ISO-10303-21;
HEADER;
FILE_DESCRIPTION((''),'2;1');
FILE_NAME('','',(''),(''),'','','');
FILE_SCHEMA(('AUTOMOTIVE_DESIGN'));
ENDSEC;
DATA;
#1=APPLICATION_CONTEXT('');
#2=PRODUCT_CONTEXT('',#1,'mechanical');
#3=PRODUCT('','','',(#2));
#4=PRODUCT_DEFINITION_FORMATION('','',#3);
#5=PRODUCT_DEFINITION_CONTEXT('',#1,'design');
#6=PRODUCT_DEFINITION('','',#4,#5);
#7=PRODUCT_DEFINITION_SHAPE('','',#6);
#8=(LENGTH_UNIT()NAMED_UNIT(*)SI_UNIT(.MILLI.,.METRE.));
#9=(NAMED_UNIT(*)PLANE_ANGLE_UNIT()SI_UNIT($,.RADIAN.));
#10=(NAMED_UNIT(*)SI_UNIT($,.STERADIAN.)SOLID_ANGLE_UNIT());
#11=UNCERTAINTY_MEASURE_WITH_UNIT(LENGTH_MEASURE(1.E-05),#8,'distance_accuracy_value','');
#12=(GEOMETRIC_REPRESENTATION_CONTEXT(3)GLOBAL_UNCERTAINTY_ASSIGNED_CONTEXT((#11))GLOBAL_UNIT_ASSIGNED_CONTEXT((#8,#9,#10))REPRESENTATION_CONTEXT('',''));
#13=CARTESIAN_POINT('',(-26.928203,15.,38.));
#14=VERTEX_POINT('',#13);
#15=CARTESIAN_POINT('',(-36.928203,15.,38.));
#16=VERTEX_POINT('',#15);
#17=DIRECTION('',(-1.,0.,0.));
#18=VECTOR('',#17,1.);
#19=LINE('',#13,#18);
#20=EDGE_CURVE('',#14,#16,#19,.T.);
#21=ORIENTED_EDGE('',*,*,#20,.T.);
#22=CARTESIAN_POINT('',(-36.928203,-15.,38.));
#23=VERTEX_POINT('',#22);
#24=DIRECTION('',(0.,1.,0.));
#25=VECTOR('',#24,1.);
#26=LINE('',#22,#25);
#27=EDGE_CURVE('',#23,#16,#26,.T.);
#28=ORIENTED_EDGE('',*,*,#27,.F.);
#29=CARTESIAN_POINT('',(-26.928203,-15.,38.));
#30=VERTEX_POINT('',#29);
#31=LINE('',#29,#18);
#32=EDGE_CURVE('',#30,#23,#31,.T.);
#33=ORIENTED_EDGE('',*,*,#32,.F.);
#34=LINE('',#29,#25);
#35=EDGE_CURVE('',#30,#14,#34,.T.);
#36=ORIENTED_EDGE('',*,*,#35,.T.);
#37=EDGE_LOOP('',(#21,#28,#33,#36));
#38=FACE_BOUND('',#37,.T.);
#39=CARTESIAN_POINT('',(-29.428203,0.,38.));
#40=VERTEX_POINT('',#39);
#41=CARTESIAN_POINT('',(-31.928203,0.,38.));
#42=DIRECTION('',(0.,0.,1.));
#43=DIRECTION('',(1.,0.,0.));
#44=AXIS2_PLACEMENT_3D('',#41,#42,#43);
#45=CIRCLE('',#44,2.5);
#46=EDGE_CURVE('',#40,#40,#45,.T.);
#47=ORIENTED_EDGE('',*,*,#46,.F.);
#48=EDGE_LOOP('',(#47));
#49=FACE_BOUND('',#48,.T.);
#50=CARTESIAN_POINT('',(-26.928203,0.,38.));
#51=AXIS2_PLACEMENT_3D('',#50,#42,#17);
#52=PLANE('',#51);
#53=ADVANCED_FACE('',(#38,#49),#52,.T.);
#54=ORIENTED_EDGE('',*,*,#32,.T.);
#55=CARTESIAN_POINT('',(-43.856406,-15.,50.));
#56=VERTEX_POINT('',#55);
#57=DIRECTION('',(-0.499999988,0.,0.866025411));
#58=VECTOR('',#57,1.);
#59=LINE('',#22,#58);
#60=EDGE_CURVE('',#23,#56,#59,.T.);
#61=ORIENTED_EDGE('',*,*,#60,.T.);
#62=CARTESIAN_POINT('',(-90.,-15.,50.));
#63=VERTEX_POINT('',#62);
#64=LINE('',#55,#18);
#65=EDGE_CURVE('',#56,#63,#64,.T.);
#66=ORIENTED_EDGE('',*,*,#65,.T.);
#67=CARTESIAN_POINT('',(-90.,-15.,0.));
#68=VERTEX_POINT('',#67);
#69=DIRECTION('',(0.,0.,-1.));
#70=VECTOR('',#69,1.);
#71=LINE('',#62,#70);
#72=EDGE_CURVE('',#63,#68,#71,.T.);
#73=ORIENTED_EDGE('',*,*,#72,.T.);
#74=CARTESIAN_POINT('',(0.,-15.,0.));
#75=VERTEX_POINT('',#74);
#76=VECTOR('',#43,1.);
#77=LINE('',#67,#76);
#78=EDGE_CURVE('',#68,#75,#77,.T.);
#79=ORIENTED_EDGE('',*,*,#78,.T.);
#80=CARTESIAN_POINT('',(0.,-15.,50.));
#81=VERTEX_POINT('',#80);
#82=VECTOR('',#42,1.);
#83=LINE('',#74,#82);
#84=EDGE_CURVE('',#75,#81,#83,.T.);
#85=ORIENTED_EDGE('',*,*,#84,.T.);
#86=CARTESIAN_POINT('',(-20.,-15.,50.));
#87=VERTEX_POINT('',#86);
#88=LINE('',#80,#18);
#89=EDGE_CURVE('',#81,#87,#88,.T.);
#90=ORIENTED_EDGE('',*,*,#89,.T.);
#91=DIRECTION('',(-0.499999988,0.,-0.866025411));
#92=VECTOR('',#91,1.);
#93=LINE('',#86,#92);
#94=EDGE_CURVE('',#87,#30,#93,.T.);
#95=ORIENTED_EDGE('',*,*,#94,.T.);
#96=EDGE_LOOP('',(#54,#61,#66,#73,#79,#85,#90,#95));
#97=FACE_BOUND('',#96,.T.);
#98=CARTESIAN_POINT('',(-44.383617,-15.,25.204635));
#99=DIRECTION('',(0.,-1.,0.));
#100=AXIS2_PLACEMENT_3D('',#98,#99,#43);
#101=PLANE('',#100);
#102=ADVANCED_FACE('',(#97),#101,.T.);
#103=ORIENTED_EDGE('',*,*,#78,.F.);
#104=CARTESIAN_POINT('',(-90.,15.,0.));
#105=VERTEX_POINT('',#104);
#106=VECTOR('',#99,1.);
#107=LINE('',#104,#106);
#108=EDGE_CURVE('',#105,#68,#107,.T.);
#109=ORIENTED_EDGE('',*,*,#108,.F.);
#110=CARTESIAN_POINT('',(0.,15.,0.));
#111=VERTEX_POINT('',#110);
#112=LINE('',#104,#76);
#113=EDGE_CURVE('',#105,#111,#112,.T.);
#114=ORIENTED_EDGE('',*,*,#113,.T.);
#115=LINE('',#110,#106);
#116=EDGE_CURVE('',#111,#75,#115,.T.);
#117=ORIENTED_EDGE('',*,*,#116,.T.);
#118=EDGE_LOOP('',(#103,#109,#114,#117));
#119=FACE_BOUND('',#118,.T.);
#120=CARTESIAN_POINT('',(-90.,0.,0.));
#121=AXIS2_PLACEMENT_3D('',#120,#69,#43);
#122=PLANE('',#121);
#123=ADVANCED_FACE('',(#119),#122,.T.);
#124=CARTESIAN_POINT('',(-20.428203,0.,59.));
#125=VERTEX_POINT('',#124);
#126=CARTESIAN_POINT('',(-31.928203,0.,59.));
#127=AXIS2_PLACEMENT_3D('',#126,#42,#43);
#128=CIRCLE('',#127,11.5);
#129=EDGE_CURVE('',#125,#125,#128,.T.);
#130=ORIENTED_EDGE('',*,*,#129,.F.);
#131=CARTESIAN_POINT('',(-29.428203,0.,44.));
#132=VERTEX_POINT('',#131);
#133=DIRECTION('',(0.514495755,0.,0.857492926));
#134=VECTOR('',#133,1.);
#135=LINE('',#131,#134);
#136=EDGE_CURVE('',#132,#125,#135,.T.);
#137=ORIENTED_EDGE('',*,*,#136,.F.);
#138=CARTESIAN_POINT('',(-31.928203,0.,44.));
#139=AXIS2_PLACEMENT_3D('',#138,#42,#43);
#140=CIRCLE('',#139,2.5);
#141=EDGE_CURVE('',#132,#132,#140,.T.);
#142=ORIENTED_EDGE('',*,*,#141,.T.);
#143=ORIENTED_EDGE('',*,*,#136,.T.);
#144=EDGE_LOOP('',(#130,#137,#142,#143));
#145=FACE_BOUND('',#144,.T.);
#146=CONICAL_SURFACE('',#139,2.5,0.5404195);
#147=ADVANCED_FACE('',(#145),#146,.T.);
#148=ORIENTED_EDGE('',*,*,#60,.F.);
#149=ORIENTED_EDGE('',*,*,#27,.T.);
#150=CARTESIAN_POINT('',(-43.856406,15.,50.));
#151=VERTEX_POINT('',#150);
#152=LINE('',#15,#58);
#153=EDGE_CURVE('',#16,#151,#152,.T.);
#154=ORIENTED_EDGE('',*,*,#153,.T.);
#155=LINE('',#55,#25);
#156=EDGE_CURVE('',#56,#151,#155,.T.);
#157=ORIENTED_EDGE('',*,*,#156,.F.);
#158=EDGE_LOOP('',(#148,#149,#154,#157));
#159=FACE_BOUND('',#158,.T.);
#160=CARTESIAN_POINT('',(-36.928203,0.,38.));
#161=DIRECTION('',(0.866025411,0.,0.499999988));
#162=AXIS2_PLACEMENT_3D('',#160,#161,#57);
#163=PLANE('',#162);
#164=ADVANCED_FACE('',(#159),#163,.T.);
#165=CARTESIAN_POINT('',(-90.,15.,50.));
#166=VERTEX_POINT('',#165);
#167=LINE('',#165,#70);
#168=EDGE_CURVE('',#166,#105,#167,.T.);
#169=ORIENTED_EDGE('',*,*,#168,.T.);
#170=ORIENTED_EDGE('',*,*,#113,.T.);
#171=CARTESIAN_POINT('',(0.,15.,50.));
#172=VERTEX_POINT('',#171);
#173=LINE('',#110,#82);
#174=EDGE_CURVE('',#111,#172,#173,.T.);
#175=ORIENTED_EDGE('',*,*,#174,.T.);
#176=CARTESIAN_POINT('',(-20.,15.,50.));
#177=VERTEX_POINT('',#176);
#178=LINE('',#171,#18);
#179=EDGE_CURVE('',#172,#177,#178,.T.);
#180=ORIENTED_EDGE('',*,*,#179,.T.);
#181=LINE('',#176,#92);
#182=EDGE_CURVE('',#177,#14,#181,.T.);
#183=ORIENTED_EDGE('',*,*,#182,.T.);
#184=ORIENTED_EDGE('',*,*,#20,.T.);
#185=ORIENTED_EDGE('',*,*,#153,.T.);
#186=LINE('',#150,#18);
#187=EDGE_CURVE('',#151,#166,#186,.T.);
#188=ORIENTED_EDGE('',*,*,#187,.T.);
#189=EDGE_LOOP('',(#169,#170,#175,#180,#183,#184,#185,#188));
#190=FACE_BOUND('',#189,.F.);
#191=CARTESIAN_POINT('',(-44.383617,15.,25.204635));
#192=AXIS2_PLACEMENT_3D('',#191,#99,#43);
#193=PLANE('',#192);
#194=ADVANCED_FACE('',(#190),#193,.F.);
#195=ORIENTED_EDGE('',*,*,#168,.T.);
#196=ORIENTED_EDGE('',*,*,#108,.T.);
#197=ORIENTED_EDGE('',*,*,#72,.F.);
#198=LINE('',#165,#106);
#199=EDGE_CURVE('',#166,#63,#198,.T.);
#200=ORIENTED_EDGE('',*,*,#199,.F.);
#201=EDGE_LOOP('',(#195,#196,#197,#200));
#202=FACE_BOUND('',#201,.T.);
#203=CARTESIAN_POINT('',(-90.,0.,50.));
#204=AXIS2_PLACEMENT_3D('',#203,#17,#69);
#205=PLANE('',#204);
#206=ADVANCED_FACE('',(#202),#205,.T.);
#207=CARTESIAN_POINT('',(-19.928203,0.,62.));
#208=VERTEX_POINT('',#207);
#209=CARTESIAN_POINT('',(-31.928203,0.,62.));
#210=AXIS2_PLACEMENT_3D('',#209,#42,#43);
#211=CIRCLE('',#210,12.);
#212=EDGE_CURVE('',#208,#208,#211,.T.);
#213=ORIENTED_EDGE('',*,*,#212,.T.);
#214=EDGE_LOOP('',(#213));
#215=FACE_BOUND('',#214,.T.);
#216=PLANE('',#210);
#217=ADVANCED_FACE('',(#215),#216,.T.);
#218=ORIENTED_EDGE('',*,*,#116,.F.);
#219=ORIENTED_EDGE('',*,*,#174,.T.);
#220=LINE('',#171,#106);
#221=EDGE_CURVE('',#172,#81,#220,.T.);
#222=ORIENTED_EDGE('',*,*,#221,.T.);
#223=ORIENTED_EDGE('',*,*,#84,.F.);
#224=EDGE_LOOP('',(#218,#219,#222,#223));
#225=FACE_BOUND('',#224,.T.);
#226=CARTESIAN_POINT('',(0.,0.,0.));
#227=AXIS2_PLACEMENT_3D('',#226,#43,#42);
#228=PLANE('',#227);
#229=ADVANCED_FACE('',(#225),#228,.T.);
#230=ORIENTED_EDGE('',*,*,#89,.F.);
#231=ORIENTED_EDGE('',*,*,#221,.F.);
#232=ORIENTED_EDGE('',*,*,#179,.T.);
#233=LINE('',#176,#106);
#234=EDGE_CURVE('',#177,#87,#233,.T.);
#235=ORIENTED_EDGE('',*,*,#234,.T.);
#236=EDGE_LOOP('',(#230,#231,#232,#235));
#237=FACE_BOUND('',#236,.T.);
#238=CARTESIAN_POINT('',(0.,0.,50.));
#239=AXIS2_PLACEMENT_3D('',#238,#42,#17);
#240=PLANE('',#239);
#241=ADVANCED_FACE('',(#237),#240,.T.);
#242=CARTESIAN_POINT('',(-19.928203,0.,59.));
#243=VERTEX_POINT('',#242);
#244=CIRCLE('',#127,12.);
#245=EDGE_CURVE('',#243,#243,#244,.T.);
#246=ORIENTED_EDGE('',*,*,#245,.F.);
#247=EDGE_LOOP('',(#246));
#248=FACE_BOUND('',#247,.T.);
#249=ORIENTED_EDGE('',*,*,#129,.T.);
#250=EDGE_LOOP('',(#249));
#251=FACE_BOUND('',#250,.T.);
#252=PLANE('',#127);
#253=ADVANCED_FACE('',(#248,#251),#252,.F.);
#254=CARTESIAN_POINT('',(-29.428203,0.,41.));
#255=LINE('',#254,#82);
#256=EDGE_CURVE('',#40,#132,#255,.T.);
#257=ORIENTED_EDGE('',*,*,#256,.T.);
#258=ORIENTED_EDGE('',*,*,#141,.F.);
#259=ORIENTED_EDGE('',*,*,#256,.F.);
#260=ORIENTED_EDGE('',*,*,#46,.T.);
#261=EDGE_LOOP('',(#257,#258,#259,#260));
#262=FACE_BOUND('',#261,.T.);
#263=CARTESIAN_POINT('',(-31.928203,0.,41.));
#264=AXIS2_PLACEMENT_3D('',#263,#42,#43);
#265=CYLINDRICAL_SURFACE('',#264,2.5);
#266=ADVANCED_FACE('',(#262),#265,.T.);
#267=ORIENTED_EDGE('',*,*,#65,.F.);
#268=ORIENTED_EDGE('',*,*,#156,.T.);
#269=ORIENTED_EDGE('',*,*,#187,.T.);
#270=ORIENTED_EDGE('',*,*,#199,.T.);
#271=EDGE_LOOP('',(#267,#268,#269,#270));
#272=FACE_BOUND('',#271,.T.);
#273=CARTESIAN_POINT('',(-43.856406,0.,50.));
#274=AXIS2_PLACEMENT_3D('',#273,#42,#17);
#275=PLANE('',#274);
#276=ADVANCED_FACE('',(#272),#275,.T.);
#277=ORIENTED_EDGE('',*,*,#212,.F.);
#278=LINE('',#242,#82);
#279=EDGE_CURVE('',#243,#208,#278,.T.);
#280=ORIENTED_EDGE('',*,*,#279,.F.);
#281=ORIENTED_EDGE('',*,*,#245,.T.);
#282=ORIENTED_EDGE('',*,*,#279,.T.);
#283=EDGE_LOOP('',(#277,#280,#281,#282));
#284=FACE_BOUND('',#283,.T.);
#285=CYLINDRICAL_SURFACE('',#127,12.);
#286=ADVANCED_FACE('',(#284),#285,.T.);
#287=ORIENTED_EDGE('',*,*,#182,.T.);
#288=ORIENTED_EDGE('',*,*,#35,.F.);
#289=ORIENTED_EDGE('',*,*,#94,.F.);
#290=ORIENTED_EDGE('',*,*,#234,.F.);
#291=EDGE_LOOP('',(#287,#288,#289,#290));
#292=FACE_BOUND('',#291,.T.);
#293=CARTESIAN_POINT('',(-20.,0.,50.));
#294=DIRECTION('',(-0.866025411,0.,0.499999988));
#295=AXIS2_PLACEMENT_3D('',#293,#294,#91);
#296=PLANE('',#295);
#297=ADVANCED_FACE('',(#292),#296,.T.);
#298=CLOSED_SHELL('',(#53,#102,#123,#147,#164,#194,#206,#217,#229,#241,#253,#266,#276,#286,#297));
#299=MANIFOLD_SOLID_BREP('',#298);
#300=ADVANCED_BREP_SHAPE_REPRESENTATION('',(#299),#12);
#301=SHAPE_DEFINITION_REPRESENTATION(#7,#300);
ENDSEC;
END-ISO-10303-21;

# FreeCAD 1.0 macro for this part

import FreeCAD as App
import Part
import Sketcher
from FreeCAD import Vector
Q = App.Units.Quantity

doc = App.newDocument("Part")
body = doc.addObject("PartDesign::Body", "Body")

# Sketch on XZ plane
sketch1 = doc.addObject("Sketcher::SketchObject", "Sketch")
body.addObject(sketch1)
sketch1.AttachmentSupport = (doc.XZ_Plane, [""])
sketch1.MapMode = "FlatFace"
sketch1.addGeometry([
    Part.LineSegment(Vector(-44, 50, 0), Vector(-90, 50, 0)),  # 0
    Part.LineSegment(Vector(-90, 50, 0), Vector(-90, 0, 0)),  # 1
    Part.LineSegment(Vector(-90, 0, 0), Vector(0, 0, 0)),  # 2
    Part.LineSegment(Vector(0, 0, 0), Vector(0, 50, 0)),  # 3
    Part.LineSegment(Vector(0, 50, 0), Vector(-20, 50, 0)),  # 4
    Part.LineSegment(Vector(-20, 50, 0), Vector(-27, 38, 0)),  # 5
    Part.LineSegment(Vector(-27, 38, 0), Vector(-37, 38, 0)),  # 6
    Part.LineSegment(Vector(-37, 38, 0), Vector(-44, 50, 0)),  # 7
], False)
sketch1.addConstraint([
    Sketcher.Constraint("Coincident", 0, 2, 1, 1),
    Sketcher.Constraint("Coincident", 1, 2, 2, 1),
    Sketcher.Constraint("Coincident", 2, 2, 3, 1),
    Sketcher.Constraint("Coincident", 3, 2, 4, 1),
    Sketcher.Constraint("Coincident", 4, 2, 5, 1),
    Sketcher.Constraint("Coincident", 5, 2, 6, 1),
    Sketcher.Constraint("Coincident", 6, 2, 7, 1),
    Sketcher.Constraint("Coincident", 7, 2, 0, 1),
    Sketcher.Constraint("Horizontal", 0),
    Sketcher.Constraint("Vertical", 1),
    Sketcher.Constraint("Horizontal", 2),
    Sketcher.Constraint("Vertical", 3),
    Sketcher.Constraint("Horizontal", 4),
    Sketcher.Constraint("Horizontal", 6),
    Sketcher.Constraint("Coincident", 2, 2, -1, 1),
    Sketcher.Constraint("Horizontal", 0, 2, 3, 2),
    Sketcher.Constraint("Equal", 5, 7),
    Sketcher.Constraint("DistanceX", 2, 1, 2, 2, Q("90 mm")),
    Sketcher.Constraint("DistanceX", 4, 2, 4, 1, Q("20 mm")),
    Sketcher.Constraint("DistanceX", 6, 2, 6, 1, Q("10 mm")),
    Sketcher.Constraint("DistanceY", 1, 2, 1, 1, Q("50 mm")),
    Sketcher.Constraint("Angle", 5, Q("-119.999999 deg")),
    Sketcher.Constraint("DistanceY", -1, 1, 5, 2, Q("38 mm")),
])
pad1 = doc.addObject("PartDesign::Pad", "Pad")
body.addObject(pad1)
pad1.Profile = sketch1
pad1.Length = 30
pad1.Midplane = True

# Sketch on XZ plane
sketch2 = doc.addObject("Sketcher::SketchObject", "Sketch001")
body.addObject(sketch2)
sketch2.AttachmentSupport = (doc.XZ_Plane, [""])
sketch2.MapMode = "FlatFace"
sketch2.addGeometry([
    Part.LineSegment(Vector(-31.9, 38, 0), Vector(-29.4, 38, 0)),  # 0
    Part.LineSegment(Vector(-29.4, 38, 0), Vector(-29.4, 44, 0)),  # 1
    Part.LineSegment(Vector(-29.4, 44, 0), Vector(-20.4, 59, 0)),  # 2
    Part.LineSegment(Vector(-20.4, 59, 0), Vector(-19.9, 59, 0)),  # 3
    Part.LineSegment(Vector(-19.9, 59, 0), Vector(-19.9, 62, 0)),  # 4
    Part.LineSegment(Vector(-19.9, 62, 0), Vector(-31.9, 62, 0)),  # 5
    Part.LineSegment(Vector(-31.9, 62, 0), Vector(-31.9, 38, 0)),  # 6
], False)
sketch2.addGeometry(Part.LineSegment(Vector(-31.9, 38, 0), Vector(-31.9, 62, 0)), True)  # axis
sketch2.addConstraint([
    Sketcher.Constraint("Coincident", 0, 2, 1, 1),
    Sketcher.Constraint("Coincident", 1, 2, 2, 1),
    Sketcher.Constraint("Coincident", 2, 2, 3, 1),
    Sketcher.Constraint("Coincident", 3, 2, 4, 1),
    Sketcher.Constraint("Coincident", 4, 2, 5, 1),
    Sketcher.Constraint("Coincident", 5, 2, 6, 1),
    Sketcher.Constraint("Coincident", 6, 2, 0, 1),
    Sketcher.Constraint("Horizontal", 0),
    Sketcher.Constraint("Vertical", 1),
    Sketcher.Constraint("Horizontal", 3),
    Sketcher.Constraint("Vertical", 4),
    Sketcher.Constraint("Horizontal", 5),
    Sketcher.Constraint("Vertical", 6),
    Sketcher.Constraint("Vertical", 7),
    Sketcher.Constraint("Coincident", 7, 1, 6, 2),
    Sketcher.Constraint("Horizontal", 4, 2, 7, 2),
    Sketcher.Constraint("DistanceX", 5, 2, 5, 1, Q("12 mm")),
    Sketcher.Constraint("DistanceY", 1, 1, 1, 2, Q("6 mm")),
    Sketcher.Constraint("DistanceY", 4, 1, 4, 2, Q("3 mm")),
    Sketcher.Constraint("DistanceY", 6, 2, 6, 1, Q("24 mm")),
    Sketcher.Constraint("DistanceX", 0, 1, 0, 2, Q("2.5 mm")),
    Sketcher.Constraint("DistanceX", 3, 1, 3, 2, Q("0.5 mm")),
    Sketcher.Constraint("DistanceY", -1, 1, 0, 2, Q("38 mm")),
    Sketcher.Constraint("DistanceX", 0, 2, -1, 1, Q("29.428203 mm")),
])
revolution = doc.addObject("PartDesign::Revolution", "Revolution")
body.addObject(revolution)
revolution.Profile = sketch2
revolution.ReferenceAxis = (sketch2, ["Axis0"])
revolution.Angle = 360

doc.recompute()
